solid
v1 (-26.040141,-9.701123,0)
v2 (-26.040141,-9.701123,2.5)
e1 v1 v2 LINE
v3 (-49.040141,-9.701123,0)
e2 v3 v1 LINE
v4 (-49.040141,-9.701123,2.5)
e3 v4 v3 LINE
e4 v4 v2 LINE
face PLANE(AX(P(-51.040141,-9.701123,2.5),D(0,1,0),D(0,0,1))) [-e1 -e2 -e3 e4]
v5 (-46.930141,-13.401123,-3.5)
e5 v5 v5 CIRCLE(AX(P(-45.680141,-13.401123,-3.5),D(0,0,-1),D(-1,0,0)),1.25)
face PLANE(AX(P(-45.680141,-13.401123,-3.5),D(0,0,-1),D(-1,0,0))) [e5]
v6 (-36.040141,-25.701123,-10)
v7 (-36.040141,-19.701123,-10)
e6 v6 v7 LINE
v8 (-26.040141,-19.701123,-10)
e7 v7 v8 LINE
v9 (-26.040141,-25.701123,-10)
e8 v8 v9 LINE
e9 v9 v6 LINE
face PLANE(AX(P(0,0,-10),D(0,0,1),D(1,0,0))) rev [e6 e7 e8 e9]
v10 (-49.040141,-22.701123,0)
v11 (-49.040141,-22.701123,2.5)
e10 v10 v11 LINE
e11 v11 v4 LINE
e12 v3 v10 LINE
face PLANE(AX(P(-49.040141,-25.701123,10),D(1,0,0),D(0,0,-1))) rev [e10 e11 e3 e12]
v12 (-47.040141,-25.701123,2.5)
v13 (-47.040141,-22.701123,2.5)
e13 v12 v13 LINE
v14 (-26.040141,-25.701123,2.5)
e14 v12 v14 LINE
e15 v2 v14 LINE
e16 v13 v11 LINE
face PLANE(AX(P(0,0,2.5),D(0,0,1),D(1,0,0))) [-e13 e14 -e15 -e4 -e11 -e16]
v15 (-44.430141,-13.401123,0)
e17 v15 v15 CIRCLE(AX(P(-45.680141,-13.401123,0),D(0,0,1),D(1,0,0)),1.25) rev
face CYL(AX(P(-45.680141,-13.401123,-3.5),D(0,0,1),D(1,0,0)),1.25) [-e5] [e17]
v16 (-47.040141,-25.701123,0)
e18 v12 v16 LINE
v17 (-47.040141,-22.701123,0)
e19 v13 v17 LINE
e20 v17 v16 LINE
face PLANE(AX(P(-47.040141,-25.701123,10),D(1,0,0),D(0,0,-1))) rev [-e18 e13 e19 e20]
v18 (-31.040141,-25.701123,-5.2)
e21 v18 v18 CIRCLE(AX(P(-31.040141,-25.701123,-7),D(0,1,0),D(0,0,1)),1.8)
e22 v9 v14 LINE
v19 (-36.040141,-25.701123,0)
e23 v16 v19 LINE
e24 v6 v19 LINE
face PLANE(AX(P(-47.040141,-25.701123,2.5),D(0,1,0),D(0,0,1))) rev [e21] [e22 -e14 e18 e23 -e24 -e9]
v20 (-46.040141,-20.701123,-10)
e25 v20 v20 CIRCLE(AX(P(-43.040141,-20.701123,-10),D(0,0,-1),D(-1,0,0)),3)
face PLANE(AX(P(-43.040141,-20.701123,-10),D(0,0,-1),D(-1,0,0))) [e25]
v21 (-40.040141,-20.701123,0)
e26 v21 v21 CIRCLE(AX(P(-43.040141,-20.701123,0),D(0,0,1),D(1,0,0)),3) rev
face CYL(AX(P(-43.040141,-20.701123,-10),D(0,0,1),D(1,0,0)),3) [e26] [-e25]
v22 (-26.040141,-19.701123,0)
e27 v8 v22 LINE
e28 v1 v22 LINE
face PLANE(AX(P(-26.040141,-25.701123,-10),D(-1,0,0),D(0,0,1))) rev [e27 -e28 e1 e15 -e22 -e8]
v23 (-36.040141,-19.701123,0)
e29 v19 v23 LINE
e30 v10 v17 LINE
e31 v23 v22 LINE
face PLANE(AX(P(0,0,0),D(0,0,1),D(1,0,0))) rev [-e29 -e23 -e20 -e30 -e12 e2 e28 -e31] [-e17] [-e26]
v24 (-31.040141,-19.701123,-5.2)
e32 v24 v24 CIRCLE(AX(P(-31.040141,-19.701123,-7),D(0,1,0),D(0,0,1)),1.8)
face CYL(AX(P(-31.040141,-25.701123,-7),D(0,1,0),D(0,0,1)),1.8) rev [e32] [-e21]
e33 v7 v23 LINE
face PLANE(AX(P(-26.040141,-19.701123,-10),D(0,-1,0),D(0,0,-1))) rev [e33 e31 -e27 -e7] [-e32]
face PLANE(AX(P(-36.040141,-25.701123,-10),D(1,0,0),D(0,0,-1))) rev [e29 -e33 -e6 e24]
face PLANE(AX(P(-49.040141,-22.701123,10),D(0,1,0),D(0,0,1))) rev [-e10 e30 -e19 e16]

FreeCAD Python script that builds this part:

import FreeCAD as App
import Part
import Sketcher
from FreeCAD import Vector
Q = App.Units.Quantity

doc = App.newDocument("Part")
body = doc.addObject("PartDesign::Body", "Body")

# Sketch on XY plane
sketch1 = body.newObject("Sketcher::SketchObject", "Sketch")
sketch1.AttachmentSupport = (doc.getObject("XY_Plane"), [""])
sketch1.MapMode = "FlatFace"
sketch1.addGeometry([
    Part.LineSegment(Vector(-47, -26, 0), Vector(-19, -26, 0)),  # 0
    Part.LineSegment(Vector(-19, -26, 0), Vector(-19, 4, 0)),  # 1
    Part.LineSegment(Vector(-19, 4, 0), Vector(-29, 4, 0)),  # 2
    Part.LineSegment(Vector(-29, 4, 0), Vector(-47, -16, 0)),  # 3
    Part.LineSegment(Vector(-47, -16, 0), Vector(-47, -26, 0)),  # 4
], False)
sketch1.addConstraint([
    Sketcher.Constraint("Coincident", 0, 2, 1, 1),
    Sketcher.Constraint("Coincident", 1, 2, 2, 1),
    Sketcher.Constraint("Coincident", 2, 2, 3, 1),
    Sketcher.Constraint("Coincident", 3, 2, 4, 1),
    Sketcher.Constraint("Coincident", 4, 2, 0, 1),
    Sketcher.Constraint("Horizontal", 0),
    Sketcher.Constraint("Vertical", 1),
    Sketcher.Constraint("Horizontal", 2),
    Sketcher.Constraint("Vertical", 4),
    Sketcher.Constraint("Equal", 2, 4),
    Sketcher.Constraint("DistanceX", 0, 1, 0, 2, Q("28 mm")),
    Sketcher.Constraint("DistanceX", 2, 2, 2, 1, Q("10 mm")),
    Sketcher.Constraint("DistanceY", 1, 1, 1, 2, Q("30 mm")),
    Sketcher.Constraint("DistanceX", 0, 2, -1, 1, Q("19.040141 mm")),
    Sketcher.Constraint("DistanceY", 0, 2, -1, 1, Q("25.701123 mm")),
])
pad1 = body.newObject("PartDesign::Pad", "Pad")
pad1.Profile = sketch1
pad1.Length = 2.5

# Sketch on XY plane
sketch2 = body.newObject("Sketcher::SketchObject", "Sketch001")
sketch2.AttachmentSupport = (doc.getObject("XY_Plane"), [""])
sketch2.MapMode = "FlatFace"
sketch2.addGeometry(Part.Circle(Vector(-23, -0.1, 0), Vector(0, 0, 1), 1.2), False)
sketch2.addConstraint([
    Sketcher.Constraint("Diameter", 0, Q("2.5 mm")),
    Sketcher.Constraint("DistanceX", 0, 3, -1, 1, Q("23.040141 mm")),
    Sketcher.Constraint("DistanceY", 0, 3, -1, 1, Q("0.081123 mm")),
])
pad2 = body.newObject("PartDesign::Pad", "Pad001")
pad2.Profile = sketch2
pad2.Length = 3.5
pad2.Reversed = True

# Sketch on XY plane
sketch3 = body.newObject("Sketcher::SketchObject", "Sketch002")
sketch3.AttachmentSupport = (doc.getObject("XY_Plane"), [""])
sketch3.MapMode = "FlatFace"
sketch3.addGeometry(Part.Circle(Vector(-43, -20.7, 0), Vector(0, 0, 1), 3), False)
sketch3.addConstraint([
    Sketcher.Constraint("Diameter", 0, Q("6 mm")),
    Sketcher.Constraint("DistanceX", 0, 3, -1, 1, Q("43.040141 mm")),
    Sketcher.Constraint("DistanceY", 0, 3, -1, 1, Q("20.701123 mm")),
])
pad3 = body.newObject("PartDesign::Pad", "Pad002")
pad3.Profile = sketch3
pad3.Length = 10
pad3.Reversed = True

# Sketch on XY plane
sketch4 = body.newObject("Sketcher::SketchObject", "Sketch003")
sketch4.AttachmentSupport = (doc.getObject("XY_Plane"), [""])
sketch4.MapMode = "FlatFace"
sketch4.addGeometry([
    Part.LineSegment(Vector(-26, -20, 0), Vector(-26, -26, 0)),
    Part.LineSegment(Vector(-26, -26, 0), Vector(-36, -26, 0)),
    Part.LineSegment(Vector(-36, -26, 0), Vector(-36, -20, 0)),
    Part.LineSegment(Vector(-36, -20, 0), Vector(-26, -20, 0)),
], False)
sketch4.addConstraint([
    Sketcher.Constraint("Coincident", 0, 2, 1, 1),
    Sketcher.Constraint("Coincident", 1, 2, 2, 1),
    Sketcher.Constraint("Coincident", 2, 2, 3, 1),
    Sketcher.Constraint("Coincident", 3, 2, 0, 1),
    Sketcher.Constraint("Vertical", 0),
    Sketcher.Constraint("Horizontal", 1),
    Sketcher.Constraint("Vertical", 2),
    Sketcher.Constraint("Horizontal", 3),
    Sketcher.Constraint("DistanceX", 1, 2, 1, 1, Q("10 mm")),
    Sketcher.Constraint("DistanceY", 0, 2, 0, 1, Q("6 mm")),
    Sketcher.Constraint("DistanceX", 0, 2, -1, 1, Q("26.040141 mm")),
    Sketcher.Constraint("DistanceY", 0, 2, -1, 1, Q("25.701123 mm")),
])
pad4 = body.newObject("PartDesign::Pad", "Pad003")
pad4.Profile = sketch4
pad4.Length = 10
pad4.Reversed = True

# Sketch on XZ plane
sketch5 = body.newObject("Sketcher::SketchObject", "Sketch004")
sketch5.AttachmentSupport = (doc.getObject("XZ_Plane"), [""])
sketch5.MapMode = "FlatFace"
sketch5.AttachmentOffset = App.Placement(Vector(0, 0, 19.701123), App.Rotation())
sketch5.addGeometry(Part.Circle(Vector(-31, -7, 0), Vector(0, 0, 1), 1.8), False)
sketch5.addConstraint([
    Sketcher.Constraint("Diameter", 0, Q("3.6 mm")),
    Sketcher.Constraint("DistanceY", 0, 3, -1, 1, Q("7 mm")),
    Sketcher.Constraint("DistanceX", 0, 3, -1, 1, Q("31.040141 mm")),
])
pocket1 = body.newObject("PartDesign::Pocket", "Pocket")
pocket1.Profile = sketch5
pocket1.Type = "ThroughAll"
pocket1.Reversed = True

# Sketch on XY plane
sketch6 = body.newObject("Sketcher::SketchObject", "Sketch005")
sketch6.AttachmentSupport = (doc.getObject("XY_Plane"), [""])
sketch6.MapMode = "FlatFace"
sketch6.addGeometry([
    Part.LineSegment(Vector(-47, -25.7, 0), Vector(-51, -25.7, 0)),  # 0
    Part.LineSegment(Vector(-51, -25.7, 0), Vector(-51, -9.7, 0)),  # 1
    Part.LineSegment(Vector(-51, -9.7, 0), Vector(-41.6, -9.7, 0)),  # 2
    Part.LineSegment(Vector(-41.6, -9.7, 0), Vector(-47, -15.7, 0)),  # 3
    Part.LineSegment(Vector(-47, -15.7, 0), Vector(-47, -25.7, 0)),  # 4
], False)
sketch6.addConstraint([
    Sketcher.Constraint("Coincident", 0, 2, 1, 1),
    Sketcher.Constraint("Coincident", 1, 2, 2, 1),
    Sketcher.Constraint("Coincident", 2, 2, 3, 1),
    Sketcher.Constraint("Coincident", 3, 2, 4, 1),
    Sketcher.Constraint("Coincident", 4, 2, 0, 1),
    Sketcher.Constraint("Horizontal", 0),
    Sketcher.Constraint("Vertical", 1),
    Sketcher.Constraint("Horizontal", 2),
    Sketcher.Constraint("Vertical", 4),
    Sketcher.Constraint("DistanceX", 0, 2, 0, 1, Q("4 mm")),
    Sketcher.Constraint("DistanceY", 1, 1, 1, 2, Q("16 mm")),
    Sketcher.Constraint("DistanceY", 4, 2, 4, 1, Q("10 mm")),
    Sketcher.Constraint("DistanceX", 2, 1, 2, 2, Q("9.4 mm")),
    Sketcher.Constraint("DistanceX", 0, 2, -1, 1, Q("51.040141 mm")),
    Sketcher.Constraint("DistanceY", 0, 2, -1, 1, Q("25.701123 mm")),
])
pad5 = body.newObject("PartDesign::Pad", "Pad004")
pad5.Profile = sketch6
pad5.Length = 2.5

# Sketch on XY plane
sketch7 = body.newObject("Sketcher::SketchObject", "Sketch006")
sketch7.AttachmentSupport = (doc.getObject("XY_Plane"), [""])
sketch7.MapMode = "FlatFace"
sketch7.AttachmentOffset = App.Placement(Vector(0, 0, -3.5), App.Rotation())
sketch7.addGeometry([
    Part.LineSegment(Vector(-19, 4, 0), Vector(-19, -26, 0)),
    Part.LineSegment(Vector(-19, -26, 0), Vector(-26, -26, 0)),
    Part.LineSegment(Vector(-26, -26, 0), Vector(-26, 4, 0)),
    Part.LineSegment(Vector(-26, 4, 0), Vector(-19, 4, 0)),
], False)
sketch7.addConstraint([
    Sketcher.Constraint("Coincident", 0, 2, 1, 1),
    Sketcher.Constraint("Coincident", 1, 2, 2, 1),
    Sketcher.Constraint("Coincident", 2, 2, 3, 1),
    Sketcher.Constraint("Coincident", 3, 2, 0, 1),
    Sketcher.Constraint("Vertical", 0),
    Sketcher.Constraint("Horizontal", 1),
    Sketcher.Constraint("Vertical", 2),
    Sketcher.Constraint("Horizontal", 3),
    Sketcher.Constraint("DistanceX", 1, 2, 1, 1, Q("7 mm")),
    Sketcher.Constraint("DistanceY", 0, 2, 0, 1, Q("30 mm")),
    Sketcher.Constraint("DistanceX", 0, 2, -1, 1, Q("19.040141 mm")),
    Sketcher.Constraint("DistanceY", 0, 2, -1, 1, Q("25.701123 mm")),
])
pocket2 = body.newObject("PartDesign::Pocket", "Pocket001")
pocket2.Profile = sketch7
pocket2.Length = 10
pocket2.Reversed = True

# Sketch on XY plane
sketch8 = body.newObject("Sketcher::SketchObject", "Sketch007")
sketch8.AttachmentSupport = (doc.getObject("XY_Plane"), [""])
sketch8.MapMode = "FlatFace"
sketch8.addGeometry([
    Part.LineSegment(Vector(-26, 4, 0), Vector(-26, -10, 0)),
    Part.LineSegment(Vector(-26, -10, 0), Vector(-42, -10, 0)),
    Part.LineSegment(Vector(-42, -10, 0), Vector(-42, 4, 0)),
    Part.LineSegment(Vector(-42, 4, 0), Vector(-26, 4, 0)),
], False)
sketch8.addConstraint([
    Sketcher.Constraint("Coincident", 0, 2, 1, 1),
    Sketcher.Constraint("Coincident", 1, 2, 2, 1),
    Sketcher.Constraint("Coincident", 2, 2, 3, 1),
    Sketcher.Constraint("Coincident", 3, 2, 0, 1),
    Sketcher.Constraint("Vertical", 0),
    Sketcher.Constraint("Horizontal", 1),
    Sketcher.Constraint("Vertical", 2),
    Sketcher.Constraint("Horizontal", 3),
    Sketcher.Constraint("DistanceY", 0, 2, 0, 1, Q("14 mm")),
    Sketcher.Constraint("DistanceX", 1, 2, 1, 1, Q("15.6 mm")),
    Sketcher.Constraint("DistanceX", 0, 2, -1, 1, Q("26.040141 mm")),
    Sketcher.Constraint("DistanceY", 0, 2, -1, 1, Q("9.701123 mm")),
])
pocket3 = body.newObject("PartDesign::Pocket", "Pocket002")
pocket3.Profile = sketch8
pocket3.Length = 10
pocket3.Reversed = True

# Sketch on XY plane
sketch9 = body.newObject("Sketcher::SketchObject", "Sketch008")
sketch9.AttachmentSupport = (doc.getObject("XY_Plane"), [""])
sketch9.MapMode = "FlatFace"
sketch9.addGeometry([
    Part.LineSegment(Vector(-49, -9.7, 0), Vector(-49, -25.7, 0)),
    Part.LineSegment(Vector(-49, -25.7, 0), Vector(-51, -25.7, 0)),
    Part.LineSegment(Vector(-51, -25.7, 0), Vector(-51, -9.7, 0)),
    Part.LineSegment(Vector(-51, -9.7, 0), Vector(-49, -9.7, 0)),
], False)
sketch9.addConstraint([
    Sketcher.Constraint("Coincident", 0, 2, 1, 1),
    Sketcher.Constraint("Coincident", 1, 2, 2, 1),
    Sketcher.Constraint("Coincident", 2, 2, 3, 1),
    Sketcher.Constraint("Coincident", 3, 2, 0, 1),
    Sketcher.Constraint("Vertical", 0),
    Sketcher.Constraint("Horizontal", 1),
    Sketcher.Constraint("Vertical", 2),
    Sketcher.Constraint("Horizontal", 3),
    Sketcher.Constraint("DistanceX", 1, 2, 1, 1, Q("2 mm")),
    Sketcher.Constraint("DistanceY", 0, 2, 0, 1, Q("16 mm")),
    Sketcher.Constraint("DistanceX", 0, 2, -1, 1, Q("49.040141 mm")),
    Sketcher.Constraint("DistanceY", 0, 2, -1, 1, Q("25.701123 mm")),
])
pocket4 = body.newObject("PartDesign::Pocket", "Pocket003")
pocket4.Profile = sketch9
pocket4.Length = 10
pocket4.Reversed = True

# Sketch on XY plane
sketch10 = body.newObject("Sketcher::SketchObject", "Sketch009")
sketch10.AttachmentSupport = (doc.getObject("XY_Plane"), [""])
sketch10.MapMode = "FlatFace"
sketch10.addGeometry(Part.Circle(Vector(-45.7, -13.4, 0), Vector(0, 0, 1), 1.2), False)
sketch10.addConstraint([
    Sketcher.Constraint("Diameter", 0, Q("2.5 mm")),
    Sketcher.Constraint("DistanceX", 0, 3, -1, 1, Q("45.680141 mm")),
    Sketcher.Constraint("DistanceY", 0, 3, -1, 1, Q("13.401123 mm")),
])
pad6 = body.newObject("PartDesign::Pad", "Pad005")
pad6.Profile = sketch10
pad6.Length = 3.5
pad6.Reversed = True

# Sketch on XY plane
sketch11 = body.newObject("Sketcher::SketchObject", "Sketch010")
sketch11.AttachmentSupport = (doc.getObject("XY_Plane"), [""])
sketch11.MapMode = "FlatFace"
sketch11.addGeometry([
    Part.LineSegment(Vector(-47, -22.7, 0), Vector(-47, -25.7, 0)),
    Part.LineSegment(Vector(-47, -25.7, 0), Vector(-49, -25.7, 0)),
    Part.LineSegment(Vector(-49, -25.7, 0), Vector(-49, -22.7, 0)),
    Part.LineSegment(Vector(-49, -22.7, 0), Vector(-47, -22.7, 0)),
], False)
sketch11.addConstraint([
    Sketcher.Constraint("Coincident", 0, 2, 1, 1),
    Sketcher.Constraint("Coincident", 1, 2, 2, 1),
    Sketcher.Constraint("Coincident", 2, 2, 3, 1),
    Sketcher.Constraint("Coincident", 3, 2, 0, 1),
    Sketcher.Constraint("Vertical", 0),
    Sketcher.Constraint("Horizontal", 1),
    Sketcher.Constraint("Vertical", 2),
    Sketcher.Constraint("Horizontal", 3),
    Sketcher.Constraint("DistanceX", 1, 2, 1, 1, Q("2 mm")),
    Sketcher.Constraint("DistanceY", 0, 2, 0, 1, Q("3 mm")),
    Sketcher.Constraint("DistanceX", 0, 2, -1, 1, Q("47.040141 mm")),
    Sketcher.Constraint("DistanceY", 0, 2, -1, 1, Q("25.701123 mm")),
])
pocket5 = body.newObject("PartDesign::Pocket", "Pocket004")
pocket5.Profile = sketch11
pocket5.Length = 10
pocket5.Reversed = True

doc.recompute()
